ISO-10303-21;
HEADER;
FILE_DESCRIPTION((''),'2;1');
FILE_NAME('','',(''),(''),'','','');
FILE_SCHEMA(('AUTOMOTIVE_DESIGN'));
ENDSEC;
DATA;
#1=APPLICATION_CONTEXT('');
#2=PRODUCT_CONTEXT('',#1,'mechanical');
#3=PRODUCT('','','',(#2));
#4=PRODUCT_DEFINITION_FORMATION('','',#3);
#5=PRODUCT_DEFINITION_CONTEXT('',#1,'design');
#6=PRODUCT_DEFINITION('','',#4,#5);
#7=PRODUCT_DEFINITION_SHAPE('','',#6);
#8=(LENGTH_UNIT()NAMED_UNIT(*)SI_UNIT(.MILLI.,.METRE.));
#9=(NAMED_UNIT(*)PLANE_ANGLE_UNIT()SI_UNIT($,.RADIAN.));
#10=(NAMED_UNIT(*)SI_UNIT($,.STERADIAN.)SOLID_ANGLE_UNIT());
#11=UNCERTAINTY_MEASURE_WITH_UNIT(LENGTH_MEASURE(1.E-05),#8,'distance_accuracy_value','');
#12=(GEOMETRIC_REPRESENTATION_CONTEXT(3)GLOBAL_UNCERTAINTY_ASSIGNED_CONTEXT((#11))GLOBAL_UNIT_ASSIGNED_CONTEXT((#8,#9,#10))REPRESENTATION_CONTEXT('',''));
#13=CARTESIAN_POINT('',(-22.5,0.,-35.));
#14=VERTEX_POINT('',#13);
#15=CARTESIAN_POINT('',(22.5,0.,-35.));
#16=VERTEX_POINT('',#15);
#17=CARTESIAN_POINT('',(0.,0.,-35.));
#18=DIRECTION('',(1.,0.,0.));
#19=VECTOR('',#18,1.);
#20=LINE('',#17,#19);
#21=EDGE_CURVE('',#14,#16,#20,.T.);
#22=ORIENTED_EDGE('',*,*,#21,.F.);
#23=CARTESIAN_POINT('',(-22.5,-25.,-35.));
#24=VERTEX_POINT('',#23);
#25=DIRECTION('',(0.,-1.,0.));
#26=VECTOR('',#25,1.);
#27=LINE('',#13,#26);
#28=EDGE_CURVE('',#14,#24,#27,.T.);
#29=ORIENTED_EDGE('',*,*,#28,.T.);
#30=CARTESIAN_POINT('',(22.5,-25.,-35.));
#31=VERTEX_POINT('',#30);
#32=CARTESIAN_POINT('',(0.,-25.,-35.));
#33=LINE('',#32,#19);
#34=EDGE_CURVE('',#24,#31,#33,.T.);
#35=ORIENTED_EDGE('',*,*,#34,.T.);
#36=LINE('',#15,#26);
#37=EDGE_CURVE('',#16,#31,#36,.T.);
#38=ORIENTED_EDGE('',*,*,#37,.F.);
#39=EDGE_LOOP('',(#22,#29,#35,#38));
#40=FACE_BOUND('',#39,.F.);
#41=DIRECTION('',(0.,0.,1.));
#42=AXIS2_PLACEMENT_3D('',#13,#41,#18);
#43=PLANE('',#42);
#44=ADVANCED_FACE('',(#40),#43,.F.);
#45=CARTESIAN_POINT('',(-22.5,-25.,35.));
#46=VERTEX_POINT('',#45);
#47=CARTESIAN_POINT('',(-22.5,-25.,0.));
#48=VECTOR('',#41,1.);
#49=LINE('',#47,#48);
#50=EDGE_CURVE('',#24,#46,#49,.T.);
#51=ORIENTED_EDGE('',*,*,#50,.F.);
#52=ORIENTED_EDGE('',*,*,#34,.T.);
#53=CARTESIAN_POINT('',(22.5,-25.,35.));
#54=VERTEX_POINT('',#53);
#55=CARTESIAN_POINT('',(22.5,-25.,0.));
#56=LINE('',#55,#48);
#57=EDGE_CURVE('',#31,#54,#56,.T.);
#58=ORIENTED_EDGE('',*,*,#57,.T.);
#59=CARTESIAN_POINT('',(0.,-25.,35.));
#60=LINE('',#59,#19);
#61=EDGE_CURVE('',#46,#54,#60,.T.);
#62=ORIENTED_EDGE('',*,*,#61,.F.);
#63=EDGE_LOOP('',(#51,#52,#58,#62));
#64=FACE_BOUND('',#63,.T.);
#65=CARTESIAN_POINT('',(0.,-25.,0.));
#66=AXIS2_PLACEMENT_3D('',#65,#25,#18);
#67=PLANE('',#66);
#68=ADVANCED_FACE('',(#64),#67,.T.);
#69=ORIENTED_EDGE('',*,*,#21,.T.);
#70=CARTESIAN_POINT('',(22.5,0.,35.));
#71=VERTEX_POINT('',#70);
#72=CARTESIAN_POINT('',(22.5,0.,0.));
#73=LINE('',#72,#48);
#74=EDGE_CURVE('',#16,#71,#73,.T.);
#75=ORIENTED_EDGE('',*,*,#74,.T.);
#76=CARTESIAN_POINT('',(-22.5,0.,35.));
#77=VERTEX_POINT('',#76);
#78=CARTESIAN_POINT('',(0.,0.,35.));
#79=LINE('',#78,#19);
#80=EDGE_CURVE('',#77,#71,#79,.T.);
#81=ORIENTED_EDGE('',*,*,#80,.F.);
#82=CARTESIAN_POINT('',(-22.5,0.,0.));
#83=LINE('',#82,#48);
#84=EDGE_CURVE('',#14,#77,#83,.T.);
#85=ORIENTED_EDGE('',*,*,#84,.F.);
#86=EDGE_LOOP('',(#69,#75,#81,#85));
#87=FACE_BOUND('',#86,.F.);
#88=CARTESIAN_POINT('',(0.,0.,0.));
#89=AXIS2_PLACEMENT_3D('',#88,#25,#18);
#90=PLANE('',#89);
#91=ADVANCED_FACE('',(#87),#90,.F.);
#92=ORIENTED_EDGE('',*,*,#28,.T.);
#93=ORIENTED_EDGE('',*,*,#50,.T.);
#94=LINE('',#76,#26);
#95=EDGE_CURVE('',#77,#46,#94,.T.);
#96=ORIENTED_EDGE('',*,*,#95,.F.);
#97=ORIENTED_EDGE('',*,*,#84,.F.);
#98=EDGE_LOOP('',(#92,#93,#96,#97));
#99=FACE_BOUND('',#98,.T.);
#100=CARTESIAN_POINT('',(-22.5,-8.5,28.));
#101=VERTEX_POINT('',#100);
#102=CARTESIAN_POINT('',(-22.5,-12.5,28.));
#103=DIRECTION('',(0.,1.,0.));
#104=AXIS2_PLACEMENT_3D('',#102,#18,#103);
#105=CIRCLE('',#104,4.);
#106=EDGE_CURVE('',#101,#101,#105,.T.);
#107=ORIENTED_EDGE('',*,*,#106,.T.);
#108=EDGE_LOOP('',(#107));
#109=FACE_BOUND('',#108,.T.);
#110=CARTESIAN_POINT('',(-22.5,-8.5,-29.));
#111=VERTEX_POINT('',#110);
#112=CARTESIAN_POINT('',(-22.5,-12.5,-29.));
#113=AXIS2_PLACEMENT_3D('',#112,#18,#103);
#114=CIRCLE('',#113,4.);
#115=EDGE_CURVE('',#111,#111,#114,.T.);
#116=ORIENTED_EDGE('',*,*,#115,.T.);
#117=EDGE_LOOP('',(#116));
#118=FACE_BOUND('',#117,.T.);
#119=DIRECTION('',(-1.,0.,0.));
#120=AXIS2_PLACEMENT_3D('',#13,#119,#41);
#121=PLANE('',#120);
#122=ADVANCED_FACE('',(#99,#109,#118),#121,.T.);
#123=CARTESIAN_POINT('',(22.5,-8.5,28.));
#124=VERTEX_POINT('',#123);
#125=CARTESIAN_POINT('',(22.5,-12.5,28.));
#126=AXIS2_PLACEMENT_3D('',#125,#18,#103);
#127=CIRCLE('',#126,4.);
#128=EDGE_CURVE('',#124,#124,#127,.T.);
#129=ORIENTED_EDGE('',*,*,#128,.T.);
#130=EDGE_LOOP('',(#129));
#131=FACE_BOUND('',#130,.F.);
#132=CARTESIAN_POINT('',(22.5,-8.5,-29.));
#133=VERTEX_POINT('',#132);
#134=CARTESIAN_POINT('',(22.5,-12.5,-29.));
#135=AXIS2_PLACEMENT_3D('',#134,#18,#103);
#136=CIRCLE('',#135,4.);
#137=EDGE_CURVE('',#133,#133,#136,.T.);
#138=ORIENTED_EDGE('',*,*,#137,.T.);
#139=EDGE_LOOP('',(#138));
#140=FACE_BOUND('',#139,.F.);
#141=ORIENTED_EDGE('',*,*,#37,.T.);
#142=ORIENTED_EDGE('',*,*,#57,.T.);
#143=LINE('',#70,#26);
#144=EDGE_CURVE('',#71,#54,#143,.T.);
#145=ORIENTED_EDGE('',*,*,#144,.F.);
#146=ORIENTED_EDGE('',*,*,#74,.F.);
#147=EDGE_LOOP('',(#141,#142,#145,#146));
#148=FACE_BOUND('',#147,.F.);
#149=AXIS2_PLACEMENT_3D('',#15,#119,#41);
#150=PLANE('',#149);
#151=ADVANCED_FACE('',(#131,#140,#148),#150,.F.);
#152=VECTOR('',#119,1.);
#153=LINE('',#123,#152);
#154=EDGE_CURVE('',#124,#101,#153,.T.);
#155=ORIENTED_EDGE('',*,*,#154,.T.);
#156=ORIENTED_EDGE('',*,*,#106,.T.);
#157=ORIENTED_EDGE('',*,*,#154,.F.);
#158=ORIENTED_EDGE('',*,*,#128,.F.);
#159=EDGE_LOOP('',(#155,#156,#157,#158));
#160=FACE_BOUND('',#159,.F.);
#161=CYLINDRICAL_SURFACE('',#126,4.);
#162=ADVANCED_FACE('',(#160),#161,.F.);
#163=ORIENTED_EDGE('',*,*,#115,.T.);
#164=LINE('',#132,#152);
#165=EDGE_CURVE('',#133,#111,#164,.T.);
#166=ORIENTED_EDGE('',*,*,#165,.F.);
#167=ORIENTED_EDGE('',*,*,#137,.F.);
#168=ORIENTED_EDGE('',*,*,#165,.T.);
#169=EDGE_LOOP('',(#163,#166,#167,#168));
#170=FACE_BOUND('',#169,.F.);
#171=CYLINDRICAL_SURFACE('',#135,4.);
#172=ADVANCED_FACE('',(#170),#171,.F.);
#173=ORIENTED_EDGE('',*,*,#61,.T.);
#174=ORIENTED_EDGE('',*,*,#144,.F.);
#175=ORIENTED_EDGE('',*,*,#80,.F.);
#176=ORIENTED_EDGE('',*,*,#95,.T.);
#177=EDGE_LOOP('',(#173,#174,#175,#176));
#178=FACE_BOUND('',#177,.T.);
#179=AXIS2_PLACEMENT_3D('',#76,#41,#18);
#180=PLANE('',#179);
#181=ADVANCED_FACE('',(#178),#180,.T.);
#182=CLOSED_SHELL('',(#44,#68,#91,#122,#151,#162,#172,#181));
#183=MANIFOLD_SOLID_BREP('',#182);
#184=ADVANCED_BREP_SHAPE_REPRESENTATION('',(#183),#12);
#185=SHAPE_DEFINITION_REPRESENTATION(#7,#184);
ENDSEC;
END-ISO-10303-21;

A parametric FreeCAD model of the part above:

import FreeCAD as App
import Part
import Sketcher
from FreeCAD import Vector

doc = App.newDocument("Part")
params = doc.addObject("Spreadsheet::Sheet", "Params")
for row, (alias, value) in enumerate([
    ("sketch1_width", "45 mm"),
    ("sketch1_height", "70 mm"),
    ("pad1_length", "25 mm"),
    ("sketch2_diameter", "8 mm"),
], start=1):
    params.set(f"A{row}", alias)
    params.set(f"B{row}", "=" + value)
    params.setAlias(f"B{row}", alias)

body = doc.addObject("PartDesign::Body", "Body")

# Sketch on XZ plane
sketch1 = doc.addObject("Sketcher::SketchObject", "Sketch")
body.addObject(sketch1)
sketch1.AttachmentSupport = (doc.XZ_Plane, [""])
sketch1.MapMode = "FlatFace"
sketch1.addGeometry([
    Part.LineSegment(Vector(-22, 35, 0), Vector(-22, -35, 0)),
    Part.LineSegment(Vector(-22, -35, 0), Vector(22, -35, 0)),
    Part.LineSegment(Vector(22, -35, 0), Vector(22, 35, 0)),
    Part.LineSegment(Vector(22, 35, 0), Vector(-22, 35, 0)),
], False)
sketch1.addConstraint([
    Sketcher.Constraint("Coincident", 0, 2, 1, 1),
    Sketcher.Constraint("Coincident", 1, 2, 2, 1),
    Sketcher.Constraint("Coincident", 2, 2, 3, 1),
    Sketcher.Constraint("Coincident", 3, 2, 0, 1),
    Sketcher.Constraint("Vertical", 0),
    Sketcher.Constraint("Horizontal", 1),
    Sketcher.Constraint("Vertical", 2),
    Sketcher.Constraint("Horizontal", 3),
    Sketcher.Constraint("Symmetric", 0, 2, 2, 2, -1, 1),
    Sketcher.Constraint("DistanceX", 1, 1, 1, 2, 45.0),
    Sketcher.Constraint("DistanceY", 0, 2, 0, 1, 70.0),
])
sketch1.setExpression("Constraints[9]", "Params.sketch1_width")
sketch1.setExpression("Constraints[10]", "Params.sketch1_height")
pad1 = doc.addObject("PartDesign::Pad", "Pad")
body.addObject(pad1)
pad1.Profile = sketch1
pad1.setExpression("Length", "Params.pad1_length")

# Sketch on YZ plane
sketch2 = doc.addObject("Sketcher::SketchObject", "Sketch001")
body.addObject(sketch2)
sketch2.AttachmentSupport = (doc.YZ_Plane, [""])
sketch2.MapMode = "FlatFace"
sketch2.AttachmentOffset = App.Placement(Vector(0, 0, 22.5), App.Rotation())
sketch2.addGeometry([
    Part.Circle(Vector(-12.5, 28, 0), Vector(0, 0, 1), 4),
    Part.Circle(Vector(-12.5, -29, 0), Vector(0, 0, 1), 4),
], False)
sketch2.addConstraint([
    Sketcher.Constraint("Equal", 0, 1),
    Sketcher.Constraint("Vertical", 0, 3, 1, 3),
    Sketcher.Constraint("Diameter", 0, 8.0),
    Sketcher.Constraint("DistanceY", -1, 1, 0, 3, 28.0),
    Sketcher.Constraint("DistanceY", 1, 3, -1, 1, 29.0),
    Sketcher.Constraint("DistanceX", 0, 3, -1, 1, 12.5),
])
sketch2.setExpression("Constraints[2]", "Params.sketch2_diameter")
pocket1 = doc.addObject("PartDesign::Pocket", "Pocket")
body.addObject(pocket1)
pocket1.Profile = sketch2
pocket1.Type = "ThroughAll"

doc.recompute()
